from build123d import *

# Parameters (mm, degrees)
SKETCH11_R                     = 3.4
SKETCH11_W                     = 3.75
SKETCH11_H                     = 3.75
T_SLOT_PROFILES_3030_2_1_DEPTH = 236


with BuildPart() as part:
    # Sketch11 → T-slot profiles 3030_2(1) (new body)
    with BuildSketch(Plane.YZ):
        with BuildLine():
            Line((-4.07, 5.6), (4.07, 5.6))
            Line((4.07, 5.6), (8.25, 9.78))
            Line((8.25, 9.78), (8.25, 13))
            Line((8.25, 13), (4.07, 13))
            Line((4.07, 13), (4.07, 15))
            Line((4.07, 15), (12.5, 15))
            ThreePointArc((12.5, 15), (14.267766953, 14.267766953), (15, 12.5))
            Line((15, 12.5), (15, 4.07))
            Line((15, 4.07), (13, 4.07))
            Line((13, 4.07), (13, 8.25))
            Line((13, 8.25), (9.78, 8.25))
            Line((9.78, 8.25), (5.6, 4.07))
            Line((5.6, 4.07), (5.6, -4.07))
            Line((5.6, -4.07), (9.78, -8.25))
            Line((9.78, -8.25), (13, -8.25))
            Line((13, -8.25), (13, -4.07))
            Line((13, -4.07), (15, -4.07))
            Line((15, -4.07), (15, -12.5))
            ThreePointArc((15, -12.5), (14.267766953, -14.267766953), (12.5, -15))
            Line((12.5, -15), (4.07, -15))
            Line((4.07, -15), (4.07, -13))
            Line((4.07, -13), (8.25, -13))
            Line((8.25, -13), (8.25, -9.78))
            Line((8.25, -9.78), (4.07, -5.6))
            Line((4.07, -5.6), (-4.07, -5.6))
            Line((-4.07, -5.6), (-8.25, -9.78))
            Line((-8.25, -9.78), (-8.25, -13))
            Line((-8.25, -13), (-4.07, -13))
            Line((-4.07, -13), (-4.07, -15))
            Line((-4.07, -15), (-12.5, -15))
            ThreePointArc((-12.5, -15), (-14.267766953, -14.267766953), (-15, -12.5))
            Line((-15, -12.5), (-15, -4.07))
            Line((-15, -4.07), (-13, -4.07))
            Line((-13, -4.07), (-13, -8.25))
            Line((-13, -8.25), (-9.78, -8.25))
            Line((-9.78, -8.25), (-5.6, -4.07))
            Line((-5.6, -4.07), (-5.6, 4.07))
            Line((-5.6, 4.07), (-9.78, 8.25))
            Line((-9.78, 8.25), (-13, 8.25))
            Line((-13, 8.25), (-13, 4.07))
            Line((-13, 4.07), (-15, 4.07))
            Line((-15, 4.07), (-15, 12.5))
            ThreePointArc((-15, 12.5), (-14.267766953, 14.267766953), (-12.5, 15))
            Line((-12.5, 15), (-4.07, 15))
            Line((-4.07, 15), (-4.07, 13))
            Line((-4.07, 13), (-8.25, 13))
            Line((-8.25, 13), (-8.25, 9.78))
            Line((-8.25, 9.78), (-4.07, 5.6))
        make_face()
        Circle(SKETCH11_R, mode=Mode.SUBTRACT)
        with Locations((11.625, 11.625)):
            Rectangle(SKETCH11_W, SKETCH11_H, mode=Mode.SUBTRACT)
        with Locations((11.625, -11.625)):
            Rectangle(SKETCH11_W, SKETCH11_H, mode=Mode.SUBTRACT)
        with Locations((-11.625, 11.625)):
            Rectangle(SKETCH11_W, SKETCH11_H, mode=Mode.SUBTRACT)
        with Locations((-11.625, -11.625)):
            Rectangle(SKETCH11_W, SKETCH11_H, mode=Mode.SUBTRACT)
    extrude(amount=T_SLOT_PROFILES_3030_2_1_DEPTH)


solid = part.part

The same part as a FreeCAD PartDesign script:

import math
import FreeCAD as App
import Part
import Sketcher
Q = App.Units.Quantity

doc = App.newDocument("Part")
body = doc.addObject("PartDesign::Body", "Body")

# Sketch on YZ plane
sketch1 = body.newObject("Sketcher::SketchObject", "Sketch")
sketch1.AttachmentSupport = (doc.getObject("YZ_Plane"), [""])
sketch1.MapMode = "FlatFace"
sketch1.addGeometry(Part.LineSegment(App.Vector(4.1, 5.6, 0), App.Vector(-4.1, 5.6, 0)), False)
sketch1.addGeometry(Part.LineSegment(App.Vector(-4.1, 5.6, 0), App.Vector(-8.2, 9.8, 0)), False)
sketch1.addGeometry(Part.LineSegment(App.Vector(-8.2, 9.8, 0), App.Vector(-8.2, 13, 0)), False)
sketch1.addGeometry(Part.LineSegment(App.Vector(-8.2, 13, 0), App.Vector(-4.1, 13, 0)), False)
sketch1.addGeometry(Part.LineSegment(App.Vector(-4.1, 13, 0), App.Vector(-4.1, 15, 0)), False)
sketch1.addGeometry(Part.LineSegment(App.Vector(-4.1, 15, 0), App.Vector(-12.5, 15, 0)), False)
sketch1.addGeometry(Part.ArcOfCircle(Part.Circle(App.Vector(-12.5, 12.5, 0), App.Vector(0, 0, 1), 2.5), math.radians(90), math.radians(180)), False)
sketch1.addGeometry(Part.LineSegment(App.Vector(-15, 12.5, 0), App.Vector(-15, 4.1, 0)), False)
sketch1.addGeometry(Part.LineSegment(App.Vector(-15, 4.1, 0), App.Vector(-13, 4.1, 0)), False)
sketch1.addGeometry(Part.LineSegment(App.Vector(-13, 4.1, 0), App.Vector(-13, 8.2, 0)), False)
sketch1.addGeometry(Part.LineSegment(App.Vector(-13, 8.2, 0), App.Vector(-9.8, 8.2, 0)), False)
sketch1.addGeometry(Part.LineSegment(App.Vector(-9.8, 8.2, 0), App.Vector(-5.6, 4.1, 0)), False)
sketch1.addGeometry(Part.LineSegment(App.Vector(-5.6, 4.1, 0), App.Vector(-5.6, -4.1, 0)), False)
sketch1.addGeometry(Part.LineSegment(App.Vector(-5.6, -4.1, 0), App.Vector(-9.8, -8.2, 0)), False)
sketch1.addGeometry(Part.LineSegment(App.Vector(-9.8, -8.2, 0), App.Vector(-13, -8.2, 0)), False)
sketch1.addGeometry(Part.LineSegment(App.Vector(-13, -8.2, 0), App.Vector(-13, -4.1, 0)), False)
sketch1.addGeometry(Part.LineSegment(App.Vector(-13, -4.1, 0), App.Vector(-15, -4.1, 0)), False)
sketch1.addGeometry(Part.LineSegment(App.Vector(-15, -4.1, 0), App.Vector(-15, -12.5, 0)), False)
sketch1.addGeometry(Part.ArcOfCircle(Part.Circle(App.Vector(-12.5, -12.5, 0), App.Vector(0, 0, 1), 2.5), math.radians(180), math.radians(270)), False)
sketch1.addGeometry(Part.LineSegment(App.Vector(-12.5, -15, 0), App.Vector(-4.1, -15, 0)), False)
sketch1.addGeometry(Part.LineSegment(App.Vector(-4.1, -15, 0), App.Vector(-4.1, -13, 0)), False)
sketch1.addGeometry(Part.LineSegment(App.Vector(-4.1, -13, 0), App.Vector(-8.2, -13, 0)), False)
sketch1.addGeometry(Part.LineSegment(App.Vector(-8.2, -13, 0), App.Vector(-8.2, -9.8, 0)), False)
sketch1.addGeometry(Part.LineSegment(App.Vector(-8.2, -9.8, 0), App.Vector(-4.1, -5.6, 0)), False)
sketch1.addGeometry(Part.LineSegment(App.Vector(-4.1, -5.6, 0), App.Vector(4.1, -5.6, 0)), False)
sketch1.addGeometry(Part.LineSegment(App.Vector(4.1, -5.6, 0), App.Vector(8.2, -9.8, 0)), False)
sketch1.addGeometry(Part.LineSegment(App.Vector(8.2, -9.8, 0), App.Vector(8.2, -13, 0)), False)
sketch1.addGeometry(Part.LineSegment(App.Vector(8.2, -13, 0), App.Vector(4.1, -13, 0)), False)
sketch1.addGeometry(Part.LineSegment(App.Vector(4.1, -13, 0), App.Vector(4.1, -15, 0)), False)
sketch1.addGeometry(Part.LineSegment(App.Vector(4.1, -15, 0), App.Vector(12.5, -15, 0)), False)
sketch1.addGeometry(Part.ArcOfCircle(Part.Circle(App.Vector(12.5, -12.5, 0), App.Vector(0, 0, 1), 2.5), math.radians(-90), math.radians(0)), False)
sketch1.addGeometry(Part.LineSegment(App.Vector(15, -12.5, 0), App.Vector(15, -4.1, 0)), False)
sketch1.addGeometry(Part.LineSegment(App.Vector(15, -4.1, 0), App.Vector(13, -4.1, 0)), False)
sketch1.addGeometry(Part.LineSegment(App.Vector(13, -4.1, 0), App.Vector(13, -8.2, 0)), False)
sketch1.addGeometry(Part.LineSegment(App.Vector(13, -8.2, 0), App.Vector(9.8, -8.2, 0)), False)
sketch1.addGeometry(Part.LineSegment(App.Vector(9.8, -8.2, 0), App.Vector(5.6, -4.1, 0)), False)
sketch1.addGeometry(Part.LineSegment(App.Vector(5.6, -4.1, 0), App.Vector(5.6, 4.1, 0)), False)
sketch1.addGeometry(Part.LineSegment(App.Vector(5.6, 4.1, 0), App.Vector(9.8, 8.2, 0)), False)
sketch1.addGeometry(Part.LineSegment(App.Vector(9.8, 8.2, 0), App.Vector(13, 8.2, 0)), False)
sketch1.addGeometry(Part.LineSegment(App.Vector(13, 8.2, 0), App.Vector(13, 4.1, 0)), False)
sketch1.addGeometry(Part.LineSegment(App.Vector(13, 4.1, 0), App.Vector(15, 4.1, 0)), False)
sketch1.addGeometry(Part.LineSegment(App.Vector(15, 4.1, 0), App.Vector(15, 12.5, 0)), False)
sketch1.addGeometry(Part.ArcOfCircle(Part.Circle(App.Vector(12.5, 12.5, 0), App.Vector(0, 0, 1), 2.5), math.radians(0), math.radians(90)), False)
sketch1.addGeometry(Part.LineSegment(App.Vector(12.5, 15, 0), App.Vector(4.1, 15, 0)), False)
sketch1.addGeometry(Part.LineSegment(App.Vector(4.1, 15, 0), App.Vector(4.1, 13, 0)), False)
sketch1.addGeometry(Part.LineSegment(App.Vector(4.1, 13, 0), App.Vector(8.2, 13, 0)), False)
sketch1.addGeometry(Part.LineSegment(App.Vector(8.2, 13, 0), App.Vector(8.2, 9.8, 0)), False)
sketch1.addGeometry(Part.LineSegment(App.Vector(8.2, 9.8, 0), App.Vector(4.1, 5.6, 0)), False)
sketch1.addGeometry(Part.LineSegment(App.Vector(9.8, -13.5, 0), App.Vector(9.8, -9.8, 0)), False)
sketch1.addGeometry(Part.LineSegment(App.Vector(9.8, -9.8, 0), App.Vector(13.5, -9.8, 0)), False)
sketch1.addGeometry(Part.LineSegment(App.Vector(13.5, -9.8, 0), App.Vector(13.5, -13.5, 0)), False)
sketch1.addGeometry(Part.LineSegment(App.Vector(13.5, -13.5, 0), App.Vector(9.8, -13.5, 0)), False)
sketch1.addGeometry(Part.LineSegment(App.Vector(-13.5, -13.5, 0), App.Vector(-13.5, -9.8, 0)), False)
sketch1.addGeometry(Part.LineSegment(App.Vector(-13.5, -9.8, 0), App.Vector(-9.8, -9.8, 0)), False)
sketch1.addGeometry(Part.LineSegment(App.Vector(-9.8, -9.8, 0), App.Vector(-9.8, -13.5, 0)), False)
sketch1.addGeometry(Part.LineSegment(App.Vector(-9.8, -13.5, 0), App.Vector(-13.5, -13.5, 0)), False)
sketch1.addGeometry(Part.LineSegment(App.Vector(9.8, 9.8, 0), App.Vector(9.8, 13.5, 0)), False)
sketch1.addGeometry(Part.LineSegment(App.Vector(9.8, 13.5, 0), App.Vector(13.5, 13.5, 0)), False)
sketch1.addGeometry(Part.LineSegment(App.Vector(13.5, 13.5, 0), App.Vector(13.5, 9.8, 0)), False)
sketch1.addGeometry(Part.LineSegment(App.Vector(13.5, 9.8, 0), App.Vector(9.8, 9.8, 0)), False)
sketch1.addGeometry(Part.Circle(App.Vector(0, 0, 0), App.Vector(0, 0, 1), 3.4), False)
sketch1.addGeometry(Part.LineSegment(App.Vector(-13.5, 9.8, 0), App.Vector(-13.5, 13.5, 0)), False)
sketch1.addGeometry(Part.LineSegment(App.Vector(-13.5, 13.5, 0), App.Vector(-9.8, 13.5, 0)), False)
sketch1.addGeometry(Part.LineSegment(App.Vector(-9.8, 13.5, 0), App.Vector(-9.8, 9.8, 0)), False)
sketch1.addGeometry(Part.LineSegment(App.Vector(-9.8, 9.8, 0), App.Vector(-13.5, 9.8, 0)), False)
sketch1.addConstraint(Sketcher.Constraint("Coincident", 0, 2, 1, 1))
sketch1.addConstraint(Sketcher.Constraint("Coincident", 1, 2, 2, 1))
sketch1.addConstraint(Sketcher.Constraint("Coincident", 2, 2, 3, 1))
sketch1.addConstraint(Sketcher.Constraint("Coincident", 3, 2, 4, 1))
sketch1.addConstraint(Sketcher.Constraint("Coincident", 4, 2, 5, 1))
sketch1.addConstraint(Sketcher.Constraint("Tangent", 5, 2, 6, 1))
sketch1.addConstraint(Sketcher.Constraint("Tangent", 6, 2, 7, 1))
sketch1.addConstraint(Sketcher.Constraint("Coincident", 7, 2, 8, 1))
sketch1.addConstraint(Sketcher.Constraint("Coincident", 8, 2, 9, 1))
sketch1.addConstraint(Sketcher.Constraint("Coincident", 9, 2, 10, 1))
sketch1.addConstraint(Sketcher.Constraint("Coincident", 10, 2, 11, 1))
sketch1.addConstraint(Sketcher.Constraint("Coincident", 11, 2, 12, 1))
sketch1.addConstraint(Sketcher.Constraint("Coincident", 12, 2, 13, 1))
sketch1.addConstraint(Sketcher.Constraint("Coincident", 13, 2, 14, 1))
sketch1.addConstraint(Sketcher.Constraint("Coincident", 14, 2, 15, 1))
sketch1.addConstraint(Sketcher.Constraint("Coincident", 15, 2, 16, 1))
sketch1.addConstraint(Sketcher.Constraint("Coincident", 16, 2, 17, 1))
sketch1.addConstraint(Sketcher.Constraint("Tangent", 17, 2, 18, 1))
sketch1.addConstraint(Sketcher.Constraint("Tangent", 18, 2, 19, 1))
sketch1.addConstraint(Sketcher.Constraint("Coincident", 19, 2, 20, 1))
sketch1.addConstraint(Sketcher.Constraint("Coincident", 20, 2, 21, 1))
sketch1.addConstraint(Sketcher.Constraint("Coincident", 21, 2, 22, 1))
sketch1.addConstraint(Sketcher.Constraint("Coincident", 22, 2, 23, 1))
sketch1.addConstraint(Sketcher.Constraint("Coincident", 23, 2, 24, 1))
sketch1.addConstraint(Sketcher.Constraint("Coincident", 24, 2, 25, 1))
sketch1.addConstraint(Sketcher.Constraint("Coincident", 25, 2, 26, 1))
sketch1.addConstraint(Sketcher.Constraint("Coincident", 26, 2, 27, 1))
sketch1.addConstraint(Sketcher.Constraint("Coincident", 27, 2, 28, 1))
sketch1.addConstraint(Sketcher.Constraint("Coincident", 28, 2, 29, 1))
sketch1.addConstraint(Sketcher.Constraint("Tangent", 29, 2, 30, 1))
sketch1.addConstraint(Sketcher.Constraint("Tangent", 30, 2, 31, 1))
sketch1.addConstraint(Sketcher.Constraint("Coincident", 31, 2, 32, 1))
sketch1.addConstraint(Sketcher.Constraint("Coincident", 32, 2, 33, 1))
sketch1.addConstraint(Sketcher.Constraint("Coincident", 33, 2, 34, 1))
sketch1.addConstraint(Sketcher.Constraint("Coincident", 34, 2, 35, 1))
sketch1.addConstraint(Sketcher.Constraint("Coincident", 35, 2, 36, 1))
sketch1.addConstraint(Sketcher.Constraint("Coincident", 36, 2, 37, 1))
sketch1.addConstraint(Sketcher.Constraint("Coincident", 37, 2, 38, 1))
sketch1.addConstraint(Sketcher.Constraint("Coincident", 38, 2, 39, 1))
sketch1.addConstraint(Sketcher.Constraint("Coincident", 39, 2, 40, 1))
sketch1.addConstraint(Sketcher.Constraint("Coincident", 40, 2, 41, 1))
sketch1.addConstraint(Sketcher.Constraint("Tangent", 41, 2, 42, 1))
sketch1.addConstraint(Sketcher.Constraint("Tangent", 42, 2, 43, 1))
sketch1.addConstraint(Sketcher.Constraint("Coincident", 43, 2, 44, 1))
sketch1.addConstraint(Sketcher.Constraint("Coincident", 44, 2, 45, 1))
sketch1.addConstraint(Sketcher.Constraint("Coincident", 45, 2, 46, 1))
sketch1.addConstraint(Sketcher.Constraint("Coincident", 46, 2, 47, 1))
sketch1.addConstraint(Sketcher.Constraint("Coincident", 47, 2, 0, 1))
sketch1.addConstraint(Sketcher.Constraint("Coincident", 48, 2, 49, 1))
sketch1.addConstraint(Sketcher.Constraint("Coincident", 49, 2, 50, 1))
sketch1.addConstraint(Sketcher.Constraint("Coincident", 50, 2, 51, 1))
sketch1.addConstraint(Sketcher.Constraint("Coincident", 51, 2, 48, 1))
sketch1.addConstraint(Sketcher.Constraint("Coincident", 52, 2, 53, 1))
sketch1.addConstraint(Sketcher.Constraint("Coincident", 53, 2, 54, 1))
sketch1.addConstraint(Sketcher.Constraint("Coincident", 54, 2, 55, 1))
sketch1.addConstraint(Sketcher.Constraint("Coincident", 55, 2, 52, 1))
sketch1.addConstraint(Sketcher.Constraint("Coincident", 56, 2, 57, 1))
sketch1.addConstraint(Sketcher.Constraint("Coincident", 57, 2, 58, 1))
sketch1.addConstraint(Sketcher.Constraint("Coincident", 58, 2, 59, 1))
sketch1.addConstraint(Sketcher.Constraint("Coincident", 59, 2, 56, 1))
sketch1.addConstraint(Sketcher.Constraint("Coincident", 61, 2, 62, 1))
sketch1.addConstraint(Sketcher.Constraint("Coincident", 62, 2, 63, 1))
sketch1.addConstraint(Sketcher.Constraint("Coincident", 63, 2, 64, 1))
sketch1.addConstraint(Sketcher.Constraint("Coincident", 64, 2, 61, 1))
sketch1.addConstraint(Sketcher.Constraint("Horizontal", 0))
sketch1.addConstraint(Sketcher.Constraint("Vertical", 2))
sketch1.addConstraint(Sketcher.Constraint("Horizontal", 3))
sketch1.addConstraint(Sketcher.Constraint("Vertical", 4))
sketch1.addConstraint(Sketcher.Constraint("Horizontal", 5))
sketch1.addConstraint(Sketcher.Constraint("Vertical", 7))
sketch1.addConstraint(Sketcher.Constraint("Horizontal", 8))
sketch1.addConstraint(Sketcher.Constraint("Vertical", 9))
sketch1.addConstraint(Sketcher.Constraint("Horizontal", 10))
sketch1.addConstraint(Sketcher.Constraint("Vertical", 12))
sketch1.addConstraint(Sketcher.Constraint("Horizontal", 14))
sketch1.addConstraint(Sketcher.Constraint("Vertical", 15))
sketch1.addConstraint(Sketcher.Constraint("Horizontal", 16))
sketch1.addConstraint(Sketcher.Constraint("Vertical", 17))
sketch1.addConstraint(Sketcher.Constraint("Horizontal", 19))
sketch1.addConstraint(Sketcher.Constraint("Vertical", 20))
sketch1.addConstraint(Sketcher.Constraint("Horizontal", 21))
sketch1.addConstraint(Sketcher.Constraint("Vertical", 22))
sketch1.addConstraint(Sketcher.Constraint("Horizontal", 24))
sketch1.addConstraint(Sketcher.Constraint("Vertical", 26))
sketch1.addConstraint(Sketcher.Constraint("Horizontal", 27))
sketch1.addConstraint(Sketcher.Constraint("Vertical", 28))
sketch1.addConstraint(Sketcher.Constraint("Horizontal", 29))
sketch1.addConstraint(Sketcher.Constraint("Vertical", 31))
sketch1.addConstraint(Sketcher.Constraint("Horizontal", 32))
sketch1.addConstraint(Sketcher.Constraint("Vertical", 33))
sketch1.addConstraint(Sketcher.Constraint("Horizontal", 34))
sketch1.addConstraint(Sketcher.Constraint("Vertical", 36))
sketch1.addConstraint(Sketcher.Constraint("Horizontal", 38))
sketch1.addConstraint(Sketcher.Constraint("Vertical", 39))
sketch1.addConstraint(Sketcher.Constraint("Horizontal", 40))
sketch1.addConstraint(Sketcher.Constraint("Vertical", 41))
sketch1.addConstraint(Sketcher.Constraint("Horizontal", 43))
sketch1.addConstraint(Sketcher.Constraint("Vertical", 44))
sketch1.addConstraint(Sketcher.Constraint("Horizontal", 45))
sketch1.addConstraint(Sketcher.Constraint("Vertical", 46))
sketch1.addConstraint(Sketcher.Constraint("Vertical", 48))
sketch1.addConstraint(Sketcher.Constraint("Horizontal", 49))
sketch1.addConstraint(Sketcher.Constraint("Vertical", 50))
sketch1.addConstraint(Sketcher.Constraint("Horizontal", 51))
sketch1.addConstraint(Sketcher.Constraint("Vertical", 52))
sketch1.addConstraint(Sketcher.Constraint("Horizontal", 53))
sketch1.addConstraint(Sketcher.Constraint("Vertical", 54))
sketch1.addConstraint(Sketcher.Constraint("Horizontal", 55))
sketch1.addConstraint(Sketcher.Constraint("Vertical", 56))
sketch1.addConstraint(Sketcher.Constraint("Horizontal", 57))
sketch1.addConstraint(Sketcher.Constraint("Vertical", 58))
sketch1.addConstraint(Sketcher.Constraint("Horizontal", 59))
sketch1.addConstraint(Sketcher.Constraint("Vertical", 61))
sketch1.addConstraint(Sketcher.Constraint("Horizontal", 62))
sketch1.addConstraint(Sketcher.Constraint("Vertical", 63))
sketch1.addConstraint(Sketcher.Constraint("Horizontal", 64))
sketch1.addConstraint(Sketcher.Constraint("Coincident", 60, 3, -1, 1))
sketch1.addConstraint(Sketcher.Constraint("Equal", 6, 18))
sketch1.addConstraint(Sketcher.Constraint("Equal", 18, 30))
sketch1.addConstraint(Sketcher.Constraint("Equal", 30, 42))
sketch1.addConstraint(Sketcher.Constraint("Symmetric", 6, 3, 30, 3, -1, 1))
sketch1.addConstraint(Sketcher.Constraint("Symmetric", 18, 3, 42, 3, -1, 1))
sketch1.addConstraint(Sketcher.Constraint("Symmetric", 0, 2, 24, 2, -1, 1))
sketch1.addConstraint(Sketcher.Constraint("Symmetric", 1, 2, 25, 2, -1, 1))
sketch1.addConstraint(Sketcher.Constraint("Symmetric", 3, 2, 27, 2, -1, 1))
sketch1.addConstraint(Sketcher.Constraint("Symmetric", 8, 2, 32, 2, -1, 1))
sketch1.addConstraint(Sketcher.Constraint("Symmetric", 10, 2, 34, 2, -1, 1))
sketch1.addConstraint(Sketcher.Constraint("Symmetric", 11, 2, 35, 2, -1, 1))
sketch1.addConstraint(Sketcher.Constraint("Symmetric", 13, 2, 37, 2, -1, 1))
sketch1.addConstraint(Sketcher.Constraint("Symmetric", 15, 2, 39, 2, -1, 1))
sketch1.addConstraint(Sketcher.Constraint("Symmetric", 20, 2, 44, 2, -1, 1))
sketch1.addConstraint(Sketcher.Constraint("Symmetric", 22, 2, 46, 2, -1, 1))
sketch1.addConstraint(Sketcher.Constraint("Symmetric", 54, 2, 56, 2, -1, 1))
sketch1.addConstraint(Sketcher.Constraint("Symmetric", 52, 2, 58, 2, -1, 1))
sketch1.addConstraint(Sketcher.Constraint("Symmetric", 50, 2, 61, 2, -1, 1))
sketch1.addConstraint(Sketcher.Constraint("Symmetric", 48, 2, 63, 2, -1, 1))
sketch1.addConstraint(Sketcher.Constraint("Symmetric", 18, 3, 30, 3, -2))
sketch1.addConstraint(Sketcher.Constraint("Symmetric", 22, 2, 25, 2, -2))
sketch1.addConstraint(Sketcher.Constraint("Symmetric", 20, 2, 27, 2, -2))
sketch1.addConstraint(Sketcher.Constraint("Symmetric", 15, 2, 32, 2, -2))
sketch1.addConstraint(Sketcher.Constraint("Symmetric", 13, 2, 34, 2, -2))
sketch1.addConstraint(Sketcher.Constraint("Symmetric", 49, 2, 52, 2, -2))
sketch1.addConstraint(Sketcher.Constraint("Symmetric", 51, 2, 54, 2, -2))
sketch1.addConstraint(Sketcher.Constraint("Parallel", 1, 11))
sketch1.addConstraint(Sketcher.Constraint("Perpendicular", 11, 13))
sketch1.addConstraint(Sketcher.Constraint("Parallel", 13, 23))
sketch1.addConstraint(Sketcher.Constraint("Perpendicular", 35, 37))
sketch1.addConstraint(Sketcher.Constraint("Parallel", 37, 47))
sketch1.addConstraint(Sketcher.Constraint("Horizontal", 8, 2, 11, 2))
sketch1.addConstraint(Sketcher.Constraint("Horizontal", 12, 2, 15, 2))
sketch1.addConstraint(Sketcher.Constraint("Vertical", 0, 2, 3, 2))
sketch1.addConstraint(Sketcher.Constraint("Equal", 38, 2))
sketch1.addConstraint(Sketcher.Constraint("Equal", 40, 4))
sketch1.addConstraint(Sketcher.Constraint("Equal", 43, 7))
sketch1.addConstraint(Sketcher.Constraint("Equal", 45, 9))
sketch1.addConstraint(Sketcher.Constraint("Equal", 24, 12))
sketch1.addConstraint(Sketcher.Constraint("Equal", 64, 48))
sketch1.addConstraint(Sketcher.Constraint("Diameter", 60, Q("6.8 mm")))
sketch1.addConstraint(Sketcher.Constraint("Radius", 6, Q("2.5 mm")))
sketch1.addConstraint(Sketcher.Constraint("DistanceX", 8, 1, 8, 2, Q("2 mm")))
sketch1.addConstraint(Sketcher.Constraint("DistanceY", -1, 1, 2, 2, Q("13 mm")))
sketch1.addConstraint(Sketcher.Constraint("DistanceX", 0, 2, 0, 1, Q("8.14 mm")))
sketch1.addConstraint(Sketcher.Constraint("DistanceX", 3, 1, 3, 2, Q("4.18 mm")))
sketch1.addConstraint(Sketcher.Constraint("DistanceX", 10, 1, 10, 2, Q("3.22 mm")))
sketch1.addConstraint(Sketcher.Constraint("DistanceX", 49, 1, 49, 2, Q("3.75 mm")))
sketch1.addConstraint(Sketcher.Constraint("DistanceX", -1, 1, 49, 2, Q("13.5 mm")))
sketch1.addConstraint(Sketcher.Constraint("DistanceY", 50, 2, -1, 1, Q("13.5 mm")))
pad1 = body.newObject("PartDesign::Pad", "Pad")
pad1.Profile = sketch1
pad1.Length = 236

doc.recompute()
